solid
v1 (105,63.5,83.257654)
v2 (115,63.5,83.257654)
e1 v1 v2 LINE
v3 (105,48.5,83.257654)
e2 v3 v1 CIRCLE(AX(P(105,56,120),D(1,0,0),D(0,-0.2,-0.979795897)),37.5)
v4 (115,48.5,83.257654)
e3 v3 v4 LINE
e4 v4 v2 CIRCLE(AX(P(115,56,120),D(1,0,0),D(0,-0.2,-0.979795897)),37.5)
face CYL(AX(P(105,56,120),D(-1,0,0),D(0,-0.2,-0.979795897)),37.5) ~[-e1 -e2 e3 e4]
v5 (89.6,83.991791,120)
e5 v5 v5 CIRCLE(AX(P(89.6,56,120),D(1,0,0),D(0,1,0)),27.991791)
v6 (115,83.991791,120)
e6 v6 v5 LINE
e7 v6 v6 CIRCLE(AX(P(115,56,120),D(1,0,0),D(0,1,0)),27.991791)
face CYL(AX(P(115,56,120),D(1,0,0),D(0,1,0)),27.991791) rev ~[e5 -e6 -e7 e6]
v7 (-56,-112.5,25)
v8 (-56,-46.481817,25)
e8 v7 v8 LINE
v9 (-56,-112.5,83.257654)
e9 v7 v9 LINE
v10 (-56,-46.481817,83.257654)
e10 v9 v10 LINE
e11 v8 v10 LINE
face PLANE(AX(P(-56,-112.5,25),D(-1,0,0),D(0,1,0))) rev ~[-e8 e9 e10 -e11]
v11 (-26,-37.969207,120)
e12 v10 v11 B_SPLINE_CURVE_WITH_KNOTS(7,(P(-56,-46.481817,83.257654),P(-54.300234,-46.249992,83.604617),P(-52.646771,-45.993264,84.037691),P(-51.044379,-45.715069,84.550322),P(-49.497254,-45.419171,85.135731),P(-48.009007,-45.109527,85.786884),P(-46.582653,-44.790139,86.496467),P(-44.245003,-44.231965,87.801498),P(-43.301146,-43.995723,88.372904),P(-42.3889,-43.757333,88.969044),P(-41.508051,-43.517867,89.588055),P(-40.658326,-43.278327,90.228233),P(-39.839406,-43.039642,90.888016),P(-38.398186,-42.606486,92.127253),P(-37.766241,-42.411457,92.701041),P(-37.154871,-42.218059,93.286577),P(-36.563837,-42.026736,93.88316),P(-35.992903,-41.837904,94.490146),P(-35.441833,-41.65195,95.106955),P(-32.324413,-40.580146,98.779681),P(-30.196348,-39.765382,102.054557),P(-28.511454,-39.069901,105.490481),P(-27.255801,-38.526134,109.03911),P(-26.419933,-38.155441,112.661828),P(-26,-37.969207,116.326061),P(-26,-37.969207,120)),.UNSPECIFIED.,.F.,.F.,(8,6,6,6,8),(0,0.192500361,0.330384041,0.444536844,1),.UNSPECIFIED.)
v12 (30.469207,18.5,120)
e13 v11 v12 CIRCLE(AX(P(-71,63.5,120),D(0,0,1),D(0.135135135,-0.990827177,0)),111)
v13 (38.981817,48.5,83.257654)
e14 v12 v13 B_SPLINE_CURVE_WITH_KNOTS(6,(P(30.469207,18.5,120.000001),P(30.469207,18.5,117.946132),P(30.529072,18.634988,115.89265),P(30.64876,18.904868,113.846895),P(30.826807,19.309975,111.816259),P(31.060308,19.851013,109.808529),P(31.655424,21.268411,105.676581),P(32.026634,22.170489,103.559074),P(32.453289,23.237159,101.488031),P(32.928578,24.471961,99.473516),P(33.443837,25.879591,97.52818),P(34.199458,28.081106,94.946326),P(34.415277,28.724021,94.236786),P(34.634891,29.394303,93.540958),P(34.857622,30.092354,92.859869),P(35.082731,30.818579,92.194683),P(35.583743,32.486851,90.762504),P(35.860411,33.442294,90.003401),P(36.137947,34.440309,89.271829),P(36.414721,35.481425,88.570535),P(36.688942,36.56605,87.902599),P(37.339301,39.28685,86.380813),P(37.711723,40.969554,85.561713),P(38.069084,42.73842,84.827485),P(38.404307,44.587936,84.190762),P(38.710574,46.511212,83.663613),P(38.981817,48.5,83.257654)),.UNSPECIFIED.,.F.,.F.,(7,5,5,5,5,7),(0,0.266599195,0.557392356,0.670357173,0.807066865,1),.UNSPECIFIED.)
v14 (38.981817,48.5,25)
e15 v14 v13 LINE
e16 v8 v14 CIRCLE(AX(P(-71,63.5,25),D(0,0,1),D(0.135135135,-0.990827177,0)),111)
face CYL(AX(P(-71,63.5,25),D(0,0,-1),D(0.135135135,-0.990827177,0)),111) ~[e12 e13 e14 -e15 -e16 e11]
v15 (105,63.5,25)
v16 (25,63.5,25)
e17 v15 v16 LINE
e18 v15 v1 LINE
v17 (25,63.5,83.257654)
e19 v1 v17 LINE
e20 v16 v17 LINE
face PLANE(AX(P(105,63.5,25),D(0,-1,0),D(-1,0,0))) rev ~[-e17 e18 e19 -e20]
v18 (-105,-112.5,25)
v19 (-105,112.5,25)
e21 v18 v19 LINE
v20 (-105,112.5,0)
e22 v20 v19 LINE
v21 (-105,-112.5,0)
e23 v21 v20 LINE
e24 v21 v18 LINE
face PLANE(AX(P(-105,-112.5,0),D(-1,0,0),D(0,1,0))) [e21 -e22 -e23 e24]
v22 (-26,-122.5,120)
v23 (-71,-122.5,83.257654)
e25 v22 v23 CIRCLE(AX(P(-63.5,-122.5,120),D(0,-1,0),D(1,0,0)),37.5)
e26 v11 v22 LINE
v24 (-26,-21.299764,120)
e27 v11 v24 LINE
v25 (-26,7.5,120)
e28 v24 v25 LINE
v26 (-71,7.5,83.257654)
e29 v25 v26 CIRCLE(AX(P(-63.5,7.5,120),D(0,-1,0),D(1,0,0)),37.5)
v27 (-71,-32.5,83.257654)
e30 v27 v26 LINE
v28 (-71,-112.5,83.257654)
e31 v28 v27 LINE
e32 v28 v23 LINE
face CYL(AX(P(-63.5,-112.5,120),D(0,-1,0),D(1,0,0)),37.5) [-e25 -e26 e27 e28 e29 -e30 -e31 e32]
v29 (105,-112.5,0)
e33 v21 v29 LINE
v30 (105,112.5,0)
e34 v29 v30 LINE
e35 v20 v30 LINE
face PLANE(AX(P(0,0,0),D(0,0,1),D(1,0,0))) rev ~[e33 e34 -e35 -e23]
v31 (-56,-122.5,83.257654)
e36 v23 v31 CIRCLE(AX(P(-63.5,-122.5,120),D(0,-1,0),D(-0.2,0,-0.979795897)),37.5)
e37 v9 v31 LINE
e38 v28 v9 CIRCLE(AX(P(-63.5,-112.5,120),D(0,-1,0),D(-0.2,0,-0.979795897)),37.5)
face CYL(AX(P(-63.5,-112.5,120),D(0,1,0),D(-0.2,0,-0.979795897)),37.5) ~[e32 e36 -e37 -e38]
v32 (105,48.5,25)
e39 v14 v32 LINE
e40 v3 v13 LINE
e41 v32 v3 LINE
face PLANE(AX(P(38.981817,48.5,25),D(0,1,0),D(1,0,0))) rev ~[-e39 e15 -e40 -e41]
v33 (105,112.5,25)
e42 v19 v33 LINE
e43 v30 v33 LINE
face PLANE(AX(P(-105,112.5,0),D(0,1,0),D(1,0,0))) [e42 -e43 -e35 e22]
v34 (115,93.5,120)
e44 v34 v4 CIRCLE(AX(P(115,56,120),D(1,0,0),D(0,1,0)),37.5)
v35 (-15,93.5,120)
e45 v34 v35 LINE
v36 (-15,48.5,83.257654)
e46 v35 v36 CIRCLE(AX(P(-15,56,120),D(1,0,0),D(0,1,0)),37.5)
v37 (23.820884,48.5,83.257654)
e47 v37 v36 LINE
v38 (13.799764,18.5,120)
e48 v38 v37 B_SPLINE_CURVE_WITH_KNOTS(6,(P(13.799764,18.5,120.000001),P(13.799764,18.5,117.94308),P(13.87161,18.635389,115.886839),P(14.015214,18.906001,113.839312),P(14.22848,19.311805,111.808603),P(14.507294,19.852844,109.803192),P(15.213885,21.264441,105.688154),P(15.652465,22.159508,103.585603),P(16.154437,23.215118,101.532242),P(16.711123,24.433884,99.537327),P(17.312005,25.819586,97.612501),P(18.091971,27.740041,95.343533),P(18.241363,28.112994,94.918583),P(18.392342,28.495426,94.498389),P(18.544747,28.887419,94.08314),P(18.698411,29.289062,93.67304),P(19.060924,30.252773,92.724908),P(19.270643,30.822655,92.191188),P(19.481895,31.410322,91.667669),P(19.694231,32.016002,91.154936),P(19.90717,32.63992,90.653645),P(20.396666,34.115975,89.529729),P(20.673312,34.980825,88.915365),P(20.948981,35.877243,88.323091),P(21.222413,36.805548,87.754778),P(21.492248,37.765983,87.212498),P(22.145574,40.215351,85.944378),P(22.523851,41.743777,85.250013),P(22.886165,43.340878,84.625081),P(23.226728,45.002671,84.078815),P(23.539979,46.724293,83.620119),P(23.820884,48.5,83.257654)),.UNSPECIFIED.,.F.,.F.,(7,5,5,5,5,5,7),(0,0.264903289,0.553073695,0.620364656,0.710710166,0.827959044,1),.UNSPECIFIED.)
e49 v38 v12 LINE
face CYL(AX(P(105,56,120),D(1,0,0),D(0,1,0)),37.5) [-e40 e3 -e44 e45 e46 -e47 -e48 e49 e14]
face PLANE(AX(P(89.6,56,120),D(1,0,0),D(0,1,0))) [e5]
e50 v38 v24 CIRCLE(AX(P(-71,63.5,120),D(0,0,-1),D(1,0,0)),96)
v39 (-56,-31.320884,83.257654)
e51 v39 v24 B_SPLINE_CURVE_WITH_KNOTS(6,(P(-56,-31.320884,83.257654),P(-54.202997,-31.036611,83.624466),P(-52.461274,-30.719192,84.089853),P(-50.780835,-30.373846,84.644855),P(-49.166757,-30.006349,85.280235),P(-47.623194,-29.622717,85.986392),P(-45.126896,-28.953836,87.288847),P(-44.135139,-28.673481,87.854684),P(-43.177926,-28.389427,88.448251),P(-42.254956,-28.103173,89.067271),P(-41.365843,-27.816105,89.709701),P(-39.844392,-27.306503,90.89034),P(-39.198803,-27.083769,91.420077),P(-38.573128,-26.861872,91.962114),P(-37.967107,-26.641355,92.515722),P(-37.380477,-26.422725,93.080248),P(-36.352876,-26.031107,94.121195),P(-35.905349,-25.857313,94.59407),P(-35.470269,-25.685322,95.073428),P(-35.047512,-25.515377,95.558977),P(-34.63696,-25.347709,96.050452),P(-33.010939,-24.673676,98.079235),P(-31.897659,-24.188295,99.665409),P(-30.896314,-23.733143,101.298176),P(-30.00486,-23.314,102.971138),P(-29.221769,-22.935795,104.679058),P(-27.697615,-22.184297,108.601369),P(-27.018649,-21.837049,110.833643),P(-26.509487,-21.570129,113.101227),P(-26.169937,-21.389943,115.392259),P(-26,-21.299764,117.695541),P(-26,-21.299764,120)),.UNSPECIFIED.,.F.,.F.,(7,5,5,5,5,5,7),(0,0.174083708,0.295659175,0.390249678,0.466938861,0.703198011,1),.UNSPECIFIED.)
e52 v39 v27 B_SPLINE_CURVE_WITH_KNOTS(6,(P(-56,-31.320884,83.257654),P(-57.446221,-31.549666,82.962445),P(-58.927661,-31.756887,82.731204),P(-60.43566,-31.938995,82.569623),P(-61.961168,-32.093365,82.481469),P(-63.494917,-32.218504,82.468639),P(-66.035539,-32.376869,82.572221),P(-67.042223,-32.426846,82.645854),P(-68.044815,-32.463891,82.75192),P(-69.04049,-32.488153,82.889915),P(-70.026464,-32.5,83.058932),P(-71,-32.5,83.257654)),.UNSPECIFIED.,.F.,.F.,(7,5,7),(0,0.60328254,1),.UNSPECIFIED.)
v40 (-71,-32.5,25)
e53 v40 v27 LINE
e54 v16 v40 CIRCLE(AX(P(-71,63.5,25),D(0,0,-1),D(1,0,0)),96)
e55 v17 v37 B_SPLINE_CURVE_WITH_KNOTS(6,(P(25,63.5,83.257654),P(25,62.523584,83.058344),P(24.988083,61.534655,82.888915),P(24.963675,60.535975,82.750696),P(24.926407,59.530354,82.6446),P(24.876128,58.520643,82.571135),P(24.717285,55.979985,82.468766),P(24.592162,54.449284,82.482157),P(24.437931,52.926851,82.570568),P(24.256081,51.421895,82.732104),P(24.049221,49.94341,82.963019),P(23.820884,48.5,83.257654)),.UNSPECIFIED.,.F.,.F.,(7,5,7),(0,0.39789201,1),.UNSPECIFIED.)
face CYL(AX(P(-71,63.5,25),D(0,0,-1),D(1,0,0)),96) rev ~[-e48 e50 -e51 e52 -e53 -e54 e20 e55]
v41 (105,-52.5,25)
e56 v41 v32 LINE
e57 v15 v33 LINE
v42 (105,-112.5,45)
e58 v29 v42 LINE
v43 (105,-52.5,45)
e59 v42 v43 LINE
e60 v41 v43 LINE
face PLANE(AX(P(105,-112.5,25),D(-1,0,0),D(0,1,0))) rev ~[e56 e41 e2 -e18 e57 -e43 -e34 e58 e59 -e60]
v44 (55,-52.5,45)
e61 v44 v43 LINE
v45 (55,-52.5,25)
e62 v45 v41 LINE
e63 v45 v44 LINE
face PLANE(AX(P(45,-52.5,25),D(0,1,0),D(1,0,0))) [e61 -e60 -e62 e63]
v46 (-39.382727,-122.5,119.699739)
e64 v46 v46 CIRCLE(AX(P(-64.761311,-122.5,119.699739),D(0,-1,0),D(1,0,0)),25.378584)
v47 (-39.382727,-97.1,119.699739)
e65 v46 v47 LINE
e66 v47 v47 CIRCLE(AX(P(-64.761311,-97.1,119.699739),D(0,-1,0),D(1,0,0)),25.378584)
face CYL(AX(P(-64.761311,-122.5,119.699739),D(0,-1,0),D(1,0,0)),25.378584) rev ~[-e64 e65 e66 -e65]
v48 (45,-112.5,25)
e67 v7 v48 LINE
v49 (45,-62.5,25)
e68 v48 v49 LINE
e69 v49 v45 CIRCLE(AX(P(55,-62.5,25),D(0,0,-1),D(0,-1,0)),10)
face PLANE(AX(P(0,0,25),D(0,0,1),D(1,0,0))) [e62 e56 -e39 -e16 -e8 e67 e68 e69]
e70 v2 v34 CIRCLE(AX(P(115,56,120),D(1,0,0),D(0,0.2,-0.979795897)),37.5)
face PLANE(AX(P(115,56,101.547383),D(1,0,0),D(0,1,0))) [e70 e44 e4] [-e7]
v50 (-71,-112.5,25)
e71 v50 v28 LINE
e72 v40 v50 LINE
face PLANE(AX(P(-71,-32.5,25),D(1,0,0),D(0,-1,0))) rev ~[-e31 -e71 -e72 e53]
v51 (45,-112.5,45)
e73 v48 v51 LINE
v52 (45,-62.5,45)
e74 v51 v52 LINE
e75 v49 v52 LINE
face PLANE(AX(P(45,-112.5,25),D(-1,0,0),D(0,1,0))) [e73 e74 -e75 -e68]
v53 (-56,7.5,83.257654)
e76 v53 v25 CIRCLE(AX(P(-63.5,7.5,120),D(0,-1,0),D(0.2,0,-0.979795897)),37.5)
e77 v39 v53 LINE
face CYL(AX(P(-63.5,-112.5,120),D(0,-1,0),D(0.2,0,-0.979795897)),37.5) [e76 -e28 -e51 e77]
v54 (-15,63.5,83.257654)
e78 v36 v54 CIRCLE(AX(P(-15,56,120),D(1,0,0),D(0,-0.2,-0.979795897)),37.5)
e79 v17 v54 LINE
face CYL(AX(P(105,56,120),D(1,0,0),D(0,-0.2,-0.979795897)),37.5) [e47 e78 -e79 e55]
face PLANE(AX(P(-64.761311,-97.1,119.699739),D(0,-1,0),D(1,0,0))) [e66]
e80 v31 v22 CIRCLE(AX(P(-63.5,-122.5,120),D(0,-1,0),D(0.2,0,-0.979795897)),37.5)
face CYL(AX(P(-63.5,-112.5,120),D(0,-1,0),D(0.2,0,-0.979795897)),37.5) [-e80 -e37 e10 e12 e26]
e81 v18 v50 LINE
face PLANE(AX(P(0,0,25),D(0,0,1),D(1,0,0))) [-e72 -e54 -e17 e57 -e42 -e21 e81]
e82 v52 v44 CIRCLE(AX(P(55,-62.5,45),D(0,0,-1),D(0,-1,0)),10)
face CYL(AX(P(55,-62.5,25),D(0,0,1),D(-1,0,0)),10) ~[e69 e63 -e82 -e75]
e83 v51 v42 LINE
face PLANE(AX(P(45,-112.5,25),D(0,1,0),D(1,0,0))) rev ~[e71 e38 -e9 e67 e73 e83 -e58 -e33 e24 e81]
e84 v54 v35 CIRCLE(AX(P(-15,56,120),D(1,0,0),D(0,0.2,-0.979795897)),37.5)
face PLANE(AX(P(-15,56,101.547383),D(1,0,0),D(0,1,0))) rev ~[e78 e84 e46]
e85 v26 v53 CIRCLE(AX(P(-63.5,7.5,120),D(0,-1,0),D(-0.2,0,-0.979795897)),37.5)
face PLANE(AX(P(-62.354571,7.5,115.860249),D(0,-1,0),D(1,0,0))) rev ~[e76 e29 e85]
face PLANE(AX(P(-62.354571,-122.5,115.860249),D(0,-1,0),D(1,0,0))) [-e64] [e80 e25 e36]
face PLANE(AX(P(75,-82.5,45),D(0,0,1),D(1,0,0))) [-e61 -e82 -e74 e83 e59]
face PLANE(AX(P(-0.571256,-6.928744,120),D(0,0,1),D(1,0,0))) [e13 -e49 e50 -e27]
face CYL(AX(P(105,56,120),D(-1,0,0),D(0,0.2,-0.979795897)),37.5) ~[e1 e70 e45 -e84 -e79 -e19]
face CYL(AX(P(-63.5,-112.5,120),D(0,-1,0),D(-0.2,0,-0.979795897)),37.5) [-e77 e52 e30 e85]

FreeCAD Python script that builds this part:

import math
import FreeCAD as App
import Part
import Sketcher


def edges_at(feature, points):
    """Names of the edges that pass closest to the given points."""
    edges = feature.Shape.Edges
    near = lambda p: min(range(len(edges)), key=lambda i: edges[i].distToShape(Part.Vertex(*p))[0])
    return sorted({f"Edge{near(p) + 1}" for p in points})


def add_polygon(sketch, points):
    """Adds a closed chain of lines whose ends are joined by coincident constraints."""
    first, n = sketch.GeometryCount, len(points)
    for a, b in zip(points, points[1:] + points[:1]):
        sketch.addGeometry(Part.LineSegment(App.Vector(*a, 0), App.Vector(*b, 0)), False)
    for i in range(n):
        sketch.addConstraint(Sketcher.Constraint("Coincident", first + i, 2, first + (i + 1) % n, 1))

doc = App.newDocument("Part")
params = doc.addObject("Spreadsheet::Sheet", "Params")
for row, (alias, value) in enumerate([
    ("sketch1_width", "210 mm"),
    ("sketch1_height", "225 mm"),
    ("pad1_length", "25 mm"),
    ("sketch2_radius", "111 mm"),
    ("sketch2_radius2", "96 mm"),
    ("sketch2_width", "15 mm"),
    ("sketch2_width2", "80 mm"),
    ("pad2_length", "95 mm"),
    ("sketch3_radius", "37.5 mm"),
    ("pad3_length", "10 mm"),
    ("pad3_length2", "120 mm"),
    ("sketch4_radius", "37.5 mm"),
    ("pad4_length", "10 mm"),
    ("pad4_length2", "120 mm"),
    ("sketch5_width", "60 mm"),
    ("pad5_length", "20 mm"),
    ("fillet_radius", "10 mm"),
    ("pocket1_length", "25.4 mm"),
    ("pocket2_length", "25.4 mm"),
], start=1):
    params.set(f"A{row}", alias)
    params.set(f"B{row}", "=" + value)
    params.setAlias(f"B{row}", alias)

body = doc.addObject("PartDesign::Body", "Body")

sketch1 = doc.addObject("Sketcher::SketchObject", "Sketch")
body.addObject(sketch1)
sketch1.AttachmentSupport = (doc.XY_Plane, [""])
sketch1.MapMode = "FlatFace"
add_polygon(sketch1, [(-105, 112), (-105, -112), (105, -112), (105, 112)])
sketch1.addConstraint(Sketcher.Constraint("Vertical", 0))
sketch1.addConstraint(Sketcher.Constraint("Horizontal", 1))
sketch1.addConstraint(Sketcher.Constraint("Vertical", 2))
sketch1.addConstraint(Sketcher.Constraint("Horizontal", 3))
sketch1.addConstraint(Sketcher.Constraint("Symmetric", 0, 2, 2, 2, -1, 1))
sketch1.addConstraint(Sketcher.Constraint("DistanceX", 1, 1, 1, 2, 210.0))
sketch1.addConstraint(Sketcher.Constraint("DistanceY", 0, 2, 0, 1, 225.0))
sketch1.setExpression("Constraints[9]", "Params.sketch1_width")
sketch1.setExpression("Constraints[10]", "Params.sketch1_height")
pad1 = doc.addObject("PartDesign::Pad", "Pad")
body.addObject(pad1)
pad1.Profile = sketch1
pad1.setExpression("Length", "Params.pad1_length")

sketch2 = doc.addObject("Sketcher::SketchObject", "Sketch001")
body.addObject(sketch2)
sketch2.AttachmentSupport = (doc.XY_Plane, [""])
sketch2.MapMode = "FlatFace"
sketch2.AttachmentOffset = App.Placement(App.Vector(0, 0, 25), App.Rotation())
sketch2.addGeometry(Part.LineSegment(App.Vector(-71, -32, 0), App.Vector(-71, -112, 0)), False)
sketch2.addGeometry(Part.LineSegment(App.Vector(-71, -112, 0), App.Vector(-56, -112, 0)), False)
sketch2.addGeometry(Part.LineSegment(App.Vector(-56, -112, 0), App.Vector(-56, -46, 0)), False)
sketch2.addGeometry(Part.ArcOfCircle(Part.Circle(App.Vector(-71, 64, 0), App.Vector(0, 0, 1), 111), math.radians(-82), math.radians(-8)), False)
sketch2.addGeometry(Part.LineSegment(App.Vector(39, 48, 0), App.Vector(105, 48, 0)), False)
sketch2.addGeometry(Part.LineSegment(App.Vector(105, 48, 0), App.Vector(105, 64, 0)), False)
sketch2.addGeometry(Part.LineSegment(App.Vector(105, 64, 0), App.Vector(25, 64, 0)), False)
sketch2.addGeometry(Part.ArcOfCircle(Part.Circle(App.Vector(-71, 64, 0), App.Vector(0, 0, 1), 96), math.radians(-90), math.radians(0)), False)
sketch2.addConstraint(Sketcher.Constraint("Coincident", 0, 2, 1, 1))
sketch2.addConstraint(Sketcher.Constraint("Coincident", 1, 2, 2, 1))
sketch2.addConstraint(Sketcher.Constraint("Coincident", 2, 2, 3, 1))
sketch2.addConstraint(Sketcher.Constraint("Coincident", 3, 2, 4, 1))
sketch2.addConstraint(Sketcher.Constraint("Coincident", 4, 2, 5, 1))
sketch2.addConstraint(Sketcher.Constraint("Coincident", 5, 2, 6, 1))
sketch2.addConstraint(Sketcher.Constraint("Coincident", 6, 2, 7, 2))
sketch2.addConstraint(Sketcher.Constraint("Coincident", 7, 1, 0, 1))
sketch2.addConstraint(Sketcher.Constraint("Vertical", 0))
sketch2.addConstraint(Sketcher.Constraint("Horizontal", 1))
sketch2.addConstraint(Sketcher.Constraint("Vertical", 2))
sketch2.addConstraint(Sketcher.Constraint("Horizontal", 4))
sketch2.addConstraint(Sketcher.Constraint("Vertical", 5))
sketch2.addConstraint(Sketcher.Constraint("Horizontal", 6))
sketch2.addConstraint(Sketcher.Constraint("Coincident", 7, 3, 3, 3))
sketch2.addConstraint(Sketcher.Constraint("Horizontal", 7, 3, 5, 2))
sketch2.addConstraint(Sketcher.Constraint("Vertical", 7, 3, 0, 2))
sketch2.addConstraint(Sketcher.Constraint("Equal", 6, 0))
sketch2.addConstraint(Sketcher.Constraint("Equal", 4, 2))
sketch2.addConstraint(Sketcher.Constraint("Radius", 3, 111.0))
sketch2.addConstraint(Sketcher.Constraint("Radius", 7, 96.0))
sketch2.addConstraint(Sketcher.Constraint("DistanceX", 1, 1, 1, 2, 15.0))
sketch2.addConstraint(Sketcher.Constraint("DistanceX", 6, 2, 6, 1, 80.0))
sketch2.addConstraint(Sketcher.Constraint("DistanceX", 3, 3, -1, 1, 71.0))
sketch2.addConstraint(Sketcher.Constraint("DistanceY", -1, 1, 3, 3, 63.5))
sketch2.setExpression("Constraints[19]", "Params.sketch2_radius")
sketch2.setExpression("Constraints[20]", "Params.sketch2_radius2")
sketch2.setExpression("Constraints[21]", "Params.sketch2_width")
sketch2.setExpression("Constraints[22]", "Params.sketch2_width2")
pad2 = doc.addObject("PartDesign::Pad", "Pad001")
body.addObject(pad2)
pad2.Profile = sketch2
pad2.setExpression("Length", "Params.pad2_length")

sketch3 = doc.addObject("Sketcher::SketchObject", "Sketch002")
body.addObject(sketch3)
sketch3.AttachmentSupport = (doc.XZ_Plane, [""])
sketch3.MapMode = "FlatFace"
sketch3.AttachmentOffset = App.Placement(App.Vector(0, 0, 112.5), App.Rotation())
sketch3.addGeometry(Part.ArcOfCircle(Part.Circle(App.Vector(-64, 120, 0), App.Vector(0, 0, 1), 38), math.radians(-78), math.radians(0)), False)
sketch3.addGeometry(Part.ArcOfCircle(Part.Circle(App.Vector(-64, 120, 0), App.Vector(0, 0, 1), 38), math.radians(0), math.radians(258)), False)
sketch3.addGeometry(Part.ArcOfCircle(Part.Circle(App.Vector(-64, 120, 0), App.Vector(0, 0, 1), 37), math.radians(-102), math.radians(-78)), False)
sketch3.addConstraint(Sketcher.Constraint("Tangent", 0, 2, 1, 1))
sketch3.addConstraint(Sketcher.Constraint("Tangent", 1, 2, 2, 1))
sketch3.addConstraint(Sketcher.Constraint("Tangent", 2, 2, 0, 1))
sketch3.addConstraint(Sketcher.Constraint("Horizontal", 2, 3, 0, 2))
sketch3.addConstraint(Sketcher.Constraint("Horizontal", 1, 2, 2, 2))
sketch3.addConstraint(Sketcher.Constraint("Radius", 0, 37.5))
sketch3.addConstraint(Sketcher.Constraint("DistanceY", -1, 1, 0, 3, 120.0))
sketch3.addConstraint(Sketcher.Constraint("DistanceX", 0, 2, -1, 1, 26.0))
sketch3.addConstraint(Sketcher.Constraint("DistanceX", 1, 2, -1, 1, 71.0))
sketch3.setExpression("Constraints[5]", "Params.sketch3_radius")
pad3 = doc.addObject("PartDesign::Pad", "Pad002")
body.addObject(pad3)
pad3.Profile = sketch3
pad3.Type = "TwoLengths"
pad3.setExpression("Length", "Params.pad3_length")
pad3.setExpression("Length2", "Params.pad3_length2")

sketch4 = doc.addObject("Sketcher::SketchObject", "Sketch003")
body.addObject(sketch4)
sketch4.AttachmentSupport = (doc.YZ_Plane, [""])
sketch4.MapMode = "FlatFace"
sketch4.AttachmentOffset = App.Placement(App.Vector(0, 0, 105), App.Rotation())
sketch4.addGeometry(Part.ArcOfCircle(Part.Circle(App.Vector(56, 120, 0), App.Vector(0, 0, 1), 37), math.radians(-102), math.radians(-78)), False)
sketch4.addGeometry(Part.ArcOfCircle(Part.Circle(App.Vector(56, 120, 0), App.Vector(0, 0, 1), 38), math.radians(-78), math.radians(0)), False)
sketch4.addGeometry(Part.ArcOfCircle(Part.Circle(App.Vector(56, 120, 0), App.Vector(0, 0, 1), 38), math.radians(0), math.radians(258)), False)
sketch4.addConstraint(Sketcher.Constraint("Tangent", 0, 2, 1, 1))
sketch4.addConstraint(Sketcher.Constraint("Tangent", 1, 2, 2, 1))
sketch4.addConstraint(Sketcher.Constraint("Tangent", 2, 2, 0, 1))
sketch4.addConstraint(Sketcher.Constraint("Horizontal", 2, 3, 1, 2))
sketch4.addConstraint(Sketcher.Constraint("Horizontal", 0, 2, 2, 2))
sketch4.addConstraint(Sketcher.Constraint("Radius", 0, 37.5))
sketch4.addConstraint(Sketcher.Constraint("DistanceX", -1, 1, 0, 3, 56.0))
sketch4.addConstraint(Sketcher.Constraint("DistanceY", -1, 1, 0, 3, 120.0))
sketch4.addConstraint(Sketcher.Constraint("DistanceX", 0, 2, 1, 2, 30.0))
sketch4.setExpression("Constraints[5]", "Params.sketch4_radius")
pad4 = doc.addObject("PartDesign::Pad", "Pad003")
body.addObject(pad4)
pad4.Profile = sketch4
pad4.Type = "TwoLengths"
pad4.setExpression("Length", "Params.pad4_length")
pad4.setExpression("Length2", "Params.pad4_length2")

sketch5 = doc.addObject("Sketcher::SketchObject", "Sketch004")
body.addObject(sketch5)
sketch5.AttachmentSupport = (doc.XY_Plane, [""])
sketch5.MapMode = "FlatFace"
sketch5.AttachmentOffset = App.Placement(App.Vector(0, 0, 25), App.Rotation())
add_polygon(sketch5, [(45, -52), (45, -112), (105, -112), (105, -52)])
sketch5.addConstraint(Sketcher.Constraint("Vertical", 0))
sketch5.addConstraint(Sketcher.Constraint("Horizontal", 1))
sketch5.addConstraint(Sketcher.Constraint("Vertical", 2))
sketch5.addConstraint(Sketcher.Constraint("Horizontal", 3))
sketch5.addConstraint(Sketcher.Constraint("Equal", 3, 0))
sketch5.addConstraint(Sketcher.Constraint("DistanceX", 1, 1, 1, 2, 60.0))
sketch5.addConstraint(Sketcher.Constraint("DistanceX", -1, 1, 0, 2, 45.0))
sketch5.addConstraint(Sketcher.Constraint("DistanceY", 0, 2, -1, 1, 112.5))
sketch5.setExpression("Constraints[9]", "Params.sketch5_width")
pad5 = doc.addObject("PartDesign::Pad", "Pad004")
body.addObject(pad5)
pad5.Profile = sketch5
pad5.setExpression("Length", "Params.pad5_length")
doc.recompute()

fillet = doc.addObject("PartDesign::Fillet", "Fillet")
body.addObject(fillet)
fillet.Base = (pad5, edges_at(pad5, [(45, -52.5, 35)]))
fillet.setExpression("Radius", "Params.fillet_radius")

sketch6 = doc.addObject("Sketcher::SketchObject", "Sketch005")
body.addObject(sketch6)
sketch6.AttachmentSupport = (doc.XZ_Plane, [""])
sketch6.MapMode = "FlatFace"
sketch6.AttachmentOffset = App.Placement(App.Vector(0, 0, 122.5), App.Rotation())
sketch6.addGeometry(Part.Circle(App.Vector(-65, 120, 0), App.Vector(0, 0, 1), 25), False)
sketch6.addConstraint(Sketcher.Constraint("Diameter", 0, 50.757168))
sketch6.addConstraint(Sketcher.Constraint("DistanceX", 0, 3, -1, 1, 64.761311))
sketch6.addConstraint(Sketcher.Constraint("DistanceY", -1, 1, 0, 3, 119.699739))
pocket1 = doc.addObject("PartDesign::Pocket", "Pocket")
body.addObject(pocket1)
pocket1.Profile = sketch6
pocket1.setExpression("Length", "Params.pocket1_length")

sketch7 = doc.addObject("Sketcher::SketchObject", "Sketch006")
body.addObject(sketch7)
sketch7.AttachmentSupport = (doc.YZ_Plane, [""])
sketch7.MapMode = "FlatFace"
sketch7.AttachmentOffset = App.Placement(App.Vector(0, 0, 115), App.Rotation())
sketch7.addGeometry(Part.Circle(App.Vector(56, 120, 0), App.Vector(0, 0, 1), 28), False)
sketch7.addConstraint(Sketcher.Constraint("DistanceX", -1, 1, 0, 3, 56.0))
sketch7.addConstraint(Sketcher.Constraint("DistanceY", -1, 1, 0, 3, 120.0))
sketch7.addConstraint(Sketcher.Constraint("Diameter", 0, 55.983582))
pocket2 = doc.addObject("PartDesign::Pocket", "Pocket001")
body.addObject(pocket2)
pocket2.Profile = sketch7
pocket2.setExpression("Length", "Params.pocket2_length")

doc.recompute()
